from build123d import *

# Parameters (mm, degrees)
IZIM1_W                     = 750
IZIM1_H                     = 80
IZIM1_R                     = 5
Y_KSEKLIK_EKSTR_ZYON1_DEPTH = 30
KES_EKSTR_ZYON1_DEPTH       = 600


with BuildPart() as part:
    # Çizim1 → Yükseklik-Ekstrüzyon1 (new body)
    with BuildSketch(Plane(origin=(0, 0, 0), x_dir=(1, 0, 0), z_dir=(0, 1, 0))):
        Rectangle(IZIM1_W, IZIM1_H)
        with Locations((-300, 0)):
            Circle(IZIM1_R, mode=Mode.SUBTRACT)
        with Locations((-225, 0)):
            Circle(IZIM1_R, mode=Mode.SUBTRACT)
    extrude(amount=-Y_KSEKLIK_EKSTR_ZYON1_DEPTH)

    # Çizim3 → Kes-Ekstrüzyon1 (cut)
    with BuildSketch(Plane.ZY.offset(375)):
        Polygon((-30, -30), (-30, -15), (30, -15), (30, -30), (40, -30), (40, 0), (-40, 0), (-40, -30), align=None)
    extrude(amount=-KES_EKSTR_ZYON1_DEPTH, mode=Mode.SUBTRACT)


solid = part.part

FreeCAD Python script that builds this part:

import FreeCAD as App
import Part
import Sketcher

V = App.Vector


def add_polygon(sketch, points):
    """Adds a closed chain of lines whose ends are joined by coincident constraints."""
    first, n = sketch.GeometryCount, len(points)
    for a, b in zip(points, points[1:] + points[:1]):
        sketch.addGeometry(Part.LineSegment(App.Vector(*a, 0), App.Vector(*b, 0)), False)
    for i in range(n):
        sketch.addConstraint(Sketcher.Constraint("Coincident", first + i, 2, first + (i + 1) % n, 1))

doc = App.newDocument("Part")
params = doc.addObject("Spreadsheet::Sheet", "Params")
for row, (alias, value) in enumerate([
    ("sketch1_diameter", "10 mm"),
    ("sketch1_width", "750 mm"),
    ("sketch1_height", "80 mm"),
    ("pad1_length", "30 mm"),
    ("sketch2_width", "15 mm"),
    ("sketch2_width2", "30 mm"),
    ("sketch2_height", "60 mm"),
    ("sketch2_height2", "10 mm"),
    ("pocket1_length", "600 mm"),
], start=1):
    params.set(f"A{row}", alias)
    params.set(f"B{row}", "=" + value)
    params.setAlias(f"B{row}", alias)

body = doc.addObject("PartDesign::Body", "Body")

# Sketch on XZ plane
sketch1 = doc.addObject("Sketcher::SketchObject", "Sketch")
body.addObject(sketch1)
sketch1.AttachmentSupport = (doc.XZ_Plane, [""])
sketch1.MapMode = "FlatFace"
add_polygon(sketch1, [(-375, -40), (-375, 40), (375, 40), (375, -40)])  # lines 0-3
sketch1.addGeometry(Part.Circle(V(-300, 0, 0), V(0, 0, 1), 5), False)  # 4
sketch1.addGeometry(Part.Circle(V(-225, 0, 0), V(0, 0, 1), 5), False)  # 5
sketch1.addConstraint([
    Sketcher.Constraint("Vertical", 0),
    Sketcher.Constraint("Horizontal", 1),
    Sketcher.Constraint("Vertical", 2),
    Sketcher.Constraint("Horizontal", 3),
    Sketcher.Constraint("Equal", 4, 5),
    Sketcher.Constraint("Symmetric", 0, 2, 2, 2, -1, 1),
    Sketcher.Constraint("PointOnObject", 4, 3, -1),
    Sketcher.Constraint("PointOnObject", 5, 3, -1),
    Sketcher.Constraint("Diameter", 4, 10.0),
    Sketcher.Constraint("DistanceX", 1, 1, 1, 2, 750.0),
    Sketcher.Constraint("DistanceY", 0, 1, 0, 2, 80.0),
    Sketcher.Constraint("DistanceX", 4, 3, -1, 1, 300.0),
    Sketcher.Constraint("DistanceX", 5, 3, -1, 1, 225.0),
])
sketch1.setExpression("Constraints[12]", "Params.sketch1_diameter")
sketch1.setExpression("Constraints[13]", "Params.sketch1_width")
sketch1.setExpression("Constraints[14]", "Params.sketch1_height")
pad1 = doc.addObject("PartDesign::Pad", "Pad")
body.addObject(pad1)
pad1.Profile = sketch1
pad1.setExpression("Length", "Params.pad1_length")

# Sketch on YZ plane
sketch2 = doc.addObject("Sketcher::SketchObject", "Sketch001")
body.addObject(sketch2)
sketch2.AttachmentSupport = (doc.YZ_Plane, [""])
sketch2.MapMode = "FlatFace"
sketch2.AttachmentOffset = App.Placement(V(0, 0, -375), App.Rotation())
add_polygon(sketch2, [(-30, -30), (-15, -30), (-15, 30), (-30, 30), (-30, 40), (0, 40), (0, -40), (-30, -40)])  # lines 0-7
sketch2.addConstraint([
    Sketcher.Constraint("Horizontal", 0),
    Sketcher.Constraint("Vertical", 1),
    Sketcher.Constraint("Horizontal", 2),
    Sketcher.Constraint("Vertical", 3),
    Sketcher.Constraint("Horizontal", 4),
    Sketcher.Constraint("Vertical", 5),
    Sketcher.Constraint("Horizontal", 6),
    Sketcher.Constraint("Vertical", 7),
    Sketcher.Constraint("Symmetric", 4, 2, 5, 2, -1, 1),
    Sketcher.Constraint("Symmetric", 2, 2, 7, 2, -1),
    Sketcher.Constraint("DistanceX", 0, 1, 0, 2, 15.0),
    Sketcher.Constraint("DistanceX", 4, 1, 4, 2, 30.0),
    Sketcher.Constraint("DistanceY", 1, 1, 1, 2, 60.0),
    Sketcher.Constraint("DistanceY", 3, 1, 3, 2, 10.0),
])
sketch2.setExpression("Constraints[18]", "Params.sketch2_width")
sketch2.setExpression("Constraints[19]", "Params.sketch2_width2")
sketch2.setExpression("Constraints[20]", "Params.sketch2_height")
sketch2.setExpression("Constraints[21]", "Params.sketch2_height2")
pocket1 = doc.addObject("PartDesign::Pocket", "Pocket")
body.addObject(pocket1)
pocket1.Profile = sketch2
pocket1.setExpression("Length", "Params.pocket1_length")
pocket1.Reversed = True

doc.recompute()
